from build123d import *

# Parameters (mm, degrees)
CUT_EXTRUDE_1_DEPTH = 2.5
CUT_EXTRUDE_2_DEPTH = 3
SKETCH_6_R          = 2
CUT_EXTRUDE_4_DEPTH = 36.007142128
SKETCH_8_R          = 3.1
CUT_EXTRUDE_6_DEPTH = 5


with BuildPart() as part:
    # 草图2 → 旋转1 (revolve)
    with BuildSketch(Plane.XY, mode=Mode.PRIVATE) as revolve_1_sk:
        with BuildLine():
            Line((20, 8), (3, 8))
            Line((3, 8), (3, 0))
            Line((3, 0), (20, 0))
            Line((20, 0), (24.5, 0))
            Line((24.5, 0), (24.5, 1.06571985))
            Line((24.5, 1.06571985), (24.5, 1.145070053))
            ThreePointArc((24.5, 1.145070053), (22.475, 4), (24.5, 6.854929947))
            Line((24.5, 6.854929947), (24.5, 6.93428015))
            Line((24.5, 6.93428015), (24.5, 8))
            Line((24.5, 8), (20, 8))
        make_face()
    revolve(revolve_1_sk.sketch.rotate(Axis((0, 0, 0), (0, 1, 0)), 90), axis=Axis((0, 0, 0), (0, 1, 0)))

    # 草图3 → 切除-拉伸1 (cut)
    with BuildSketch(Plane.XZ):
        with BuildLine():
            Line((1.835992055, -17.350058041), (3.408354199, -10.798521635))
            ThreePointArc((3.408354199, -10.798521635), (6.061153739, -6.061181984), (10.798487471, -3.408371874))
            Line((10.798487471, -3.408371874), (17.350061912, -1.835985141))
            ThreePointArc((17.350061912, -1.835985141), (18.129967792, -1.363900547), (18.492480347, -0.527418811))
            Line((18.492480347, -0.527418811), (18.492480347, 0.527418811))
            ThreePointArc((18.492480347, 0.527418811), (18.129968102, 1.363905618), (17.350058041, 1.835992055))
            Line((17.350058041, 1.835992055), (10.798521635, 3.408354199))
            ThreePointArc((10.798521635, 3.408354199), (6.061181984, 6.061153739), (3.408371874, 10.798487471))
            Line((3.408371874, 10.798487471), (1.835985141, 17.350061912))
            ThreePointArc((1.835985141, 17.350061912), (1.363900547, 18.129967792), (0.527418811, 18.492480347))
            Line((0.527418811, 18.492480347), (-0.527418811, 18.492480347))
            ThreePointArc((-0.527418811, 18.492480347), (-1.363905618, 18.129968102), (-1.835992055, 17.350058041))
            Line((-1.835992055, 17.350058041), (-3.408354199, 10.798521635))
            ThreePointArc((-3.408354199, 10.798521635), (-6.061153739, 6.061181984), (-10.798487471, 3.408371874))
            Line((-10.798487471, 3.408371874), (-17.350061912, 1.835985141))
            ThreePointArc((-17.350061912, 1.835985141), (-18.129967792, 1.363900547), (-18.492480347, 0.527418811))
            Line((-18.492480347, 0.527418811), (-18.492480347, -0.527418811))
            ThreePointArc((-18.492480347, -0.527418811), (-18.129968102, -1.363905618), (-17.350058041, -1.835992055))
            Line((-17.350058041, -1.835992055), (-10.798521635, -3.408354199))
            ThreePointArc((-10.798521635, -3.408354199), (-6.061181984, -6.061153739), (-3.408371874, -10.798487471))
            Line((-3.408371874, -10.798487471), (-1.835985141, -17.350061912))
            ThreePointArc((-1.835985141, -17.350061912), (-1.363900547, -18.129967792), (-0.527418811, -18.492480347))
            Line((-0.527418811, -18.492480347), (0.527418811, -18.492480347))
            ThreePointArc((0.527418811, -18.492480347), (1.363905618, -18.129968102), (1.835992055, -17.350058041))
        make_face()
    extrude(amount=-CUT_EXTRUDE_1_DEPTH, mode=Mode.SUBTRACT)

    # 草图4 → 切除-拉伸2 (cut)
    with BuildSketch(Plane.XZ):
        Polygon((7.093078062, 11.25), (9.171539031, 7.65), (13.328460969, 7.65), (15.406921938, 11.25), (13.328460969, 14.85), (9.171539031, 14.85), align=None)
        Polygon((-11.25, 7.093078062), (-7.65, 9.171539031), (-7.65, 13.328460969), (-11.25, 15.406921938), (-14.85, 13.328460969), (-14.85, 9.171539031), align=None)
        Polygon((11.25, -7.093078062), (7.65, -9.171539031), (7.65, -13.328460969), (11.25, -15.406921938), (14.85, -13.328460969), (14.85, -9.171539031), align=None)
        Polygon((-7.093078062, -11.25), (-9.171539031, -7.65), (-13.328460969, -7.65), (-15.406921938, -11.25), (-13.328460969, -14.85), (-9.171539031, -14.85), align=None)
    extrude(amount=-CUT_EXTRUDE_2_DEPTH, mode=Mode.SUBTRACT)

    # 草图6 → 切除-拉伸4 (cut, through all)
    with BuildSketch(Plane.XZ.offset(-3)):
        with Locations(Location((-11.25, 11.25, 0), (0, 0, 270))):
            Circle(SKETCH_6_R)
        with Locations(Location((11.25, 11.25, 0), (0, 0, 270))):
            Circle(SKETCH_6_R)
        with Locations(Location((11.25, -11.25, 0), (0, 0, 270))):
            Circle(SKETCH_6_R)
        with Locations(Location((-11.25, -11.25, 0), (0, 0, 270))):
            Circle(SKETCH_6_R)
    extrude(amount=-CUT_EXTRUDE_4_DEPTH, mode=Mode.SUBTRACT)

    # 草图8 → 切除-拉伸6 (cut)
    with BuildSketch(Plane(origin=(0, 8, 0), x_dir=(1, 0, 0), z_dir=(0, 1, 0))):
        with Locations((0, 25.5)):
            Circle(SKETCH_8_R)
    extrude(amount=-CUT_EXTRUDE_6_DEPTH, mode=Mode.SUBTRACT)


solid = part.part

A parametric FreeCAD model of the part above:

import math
import FreeCAD as App
import Part
import Sketcher
Q = App.Units.Quantity


def add_polygon(sketch, points):
    """Adds a closed chain of lines whose ends are joined by coincident constraints."""
    first, n = sketch.GeometryCount, len(points)
    for a, b in zip(points, points[1:] + points[:1]):
        sketch.addGeometry(Part.LineSegment(App.Vector(*a, 0), App.Vector(*b, 0)), False)
    for i in range(n):
        sketch.addConstraint(Sketcher.Constraint("Coincident", first + i, 2, first + (i + 1) % n, 1))

doc = App.newDocument("Part")
body = doc.addObject("PartDesign::Body", "Body")

sketch1 = doc.addObject("Sketcher::SketchObject", "Sketch")
body.addObject(sketch1)
sketch1.AttachmentSupport = (doc.XY_Plane, [""])
sketch1.MapMode = "FlatFace"
sketch1.addGeometry([
    Part.LineSegment(App.Vector(3, 8, 0), App.Vector(3, 0, 0)),
    Part.LineSegment(App.Vector(3, 0, 0), App.Vector(24.5, 0, 0)),
    Part.LineSegment(App.Vector(24.5, 0, 0), App.Vector(24.5, 1.14507, 0)),
    Part.ArcOfCircle(Part.Circle(App.Vector(25.5, 4, 0), App.Vector(0, 0, 1), 3.025), math.radians(109.303893), math.radians(250.696107)),
    Part.LineSegment(App.Vector(24.5, 6.85493, 0), App.Vector(24.5, 8, 0)),
    Part.LineSegment(App.Vector(24.5, 8, 0), App.Vector(3, 8, 0)),
], False)
sketch1.addConstraint([
    Sketcher.Constraint("Coincident", 0, 2, 1, 1),
    Sketcher.Constraint("Coincident", 1, 2, 2, 1),
    Sketcher.Constraint("Coincident", 2, 2, 3, 2),
    Sketcher.Constraint("Coincident", 3, 1, 4, 1),
    Sketcher.Constraint("Coincident", 4, 2, 5, 1),
    Sketcher.Constraint("Coincident", 5, 2, 0, 1),
    Sketcher.Constraint("Vertical", 0),
    Sketcher.Constraint("Horizontal", 1),
    Sketcher.Constraint("Vertical", 2),
    Sketcher.Constraint("Vertical", 4),
    Sketcher.Constraint("Horizontal", 5),
    Sketcher.Constraint("PointOnObject", 0, 2, -1),
    Sketcher.Constraint("Vertical", 2, 2, 3, 1),
    Sketcher.Constraint("Equal", 2, 4),
    Sketcher.Constraint("DistanceY", 0, 2, 0, 1, 8.0),
    Sketcher.Constraint("DistanceX", 1, 1, 1, 2, 21.5),
    Sketcher.Constraint("DistanceX", -1, 1, 0, 2, 3.0),
    Sketcher.Constraint("Radius", 3, 3.025),
    Sketcher.Constraint("DistanceX", 1, 2, 3, 3, 1.0),
])
revolution = doc.addObject("PartDesign::Revolution", "Revolution")
body.addObject(revolution)
revolution.Profile = sketch1
revolution.ReferenceAxis = (sketch1, ["V_Axis"])
revolution.Angle = 360

sketch2 = doc.addObject("Sketcher::SketchObject", "Sketch001")
body.addObject(sketch2)
sketch2.AttachmentSupport = (doc.XZ_Plane, [""])
sketch2.MapMode = "FlatFace"
sketch2.addGeometry([
    Part.LineSegment(App.Vector(1.835992, -17.350058, 0), App.Vector(3.408354, -10.798522, 0)),
    Part.ArcOfCircle(Part.Circle(App.Vector(13.132229, -13.132242, 0), App.Vector(0, 0, 1), 10), math.radians(103.495807), math.radians(166.504321)),
    Part.LineSegment(App.Vector(10.798487, -3.408372, 0), App.Vector(17.350062, -1.835985, 0)),
    Part.ArcOfCircle(Part.Circle(App.Vector(17.000001, -0.377405, 0), App.Vector(0, 0, 1), 1.5), math.radians(-76.504193), math.radians(-5.739715)),
    Part.LineSegment(App.Vector(18.49248, -0.527419, 0), App.Vector(18.49248, 0.527419, 0)),
    Part.ArcOfCircle(Part.Circle(App.Vector(17, 0.377411, 0), App.Vector(0, 0, 1), 1.5), math.radians(5.739479), math.radians(76.504321)),
    Part.LineSegment(App.Vector(17.350058, 1.835992, 0), App.Vector(10.798522, 3.408354, 0)),
    Part.ArcOfCircle(Part.Circle(App.Vector(13.132242, 13.132229, 0), App.Vector(0, 0, 1), 10), math.radians(-166.504193), math.radians(-103.495679)),
    Part.LineSegment(App.Vector(3.408372, 10.798487, 0), App.Vector(1.835985, 17.350062, 0)),
    Part.ArcOfCircle(Part.Circle(App.Vector(0.377405, 17.000001, 0), App.Vector(0, 0, 1), 1.5), math.radians(13.495807), math.radians(84.260285)),
    Part.LineSegment(App.Vector(0.527419, 18.49248, 0), App.Vector(-0.527419, 18.49248, 0)),
    Part.ArcOfCircle(Part.Circle(App.Vector(-0.377411, 17, 0), App.Vector(0, 0, 1), 1.5), math.radians(95.739479), math.radians(166.504321)),
    Part.LineSegment(App.Vector(-1.835992, 17.350058, 0), App.Vector(-3.408354, 10.798522, 0)),
    Part.ArcOfCircle(Part.Circle(App.Vector(-13.132229, 13.132242, 0), App.Vector(0, 0, 1), 10), math.radians(-76.504193), math.radians(-13.495679)),
    Part.LineSegment(App.Vector(-10.798487, 3.408372, 0), App.Vector(-17.350062, 1.835985, 0)),
    Part.ArcOfCircle(Part.Circle(App.Vector(-17.000001, 0.377405, 0), App.Vector(0, 0, 1), 1.5), math.radians(103.495807), math.radians(174.260285)),
    Part.LineSegment(App.Vector(-18.49248, 0.527419, 0), App.Vector(-18.49248, -0.527419, 0)),
    Part.ArcOfCircle(Part.Circle(App.Vector(-17, -0.377411, 0), App.Vector(0, 0, 1), 1.5), math.radians(-174.260521), math.radians(-103.495679)),
    Part.LineSegment(App.Vector(-17.350058, -1.835992, 0), App.Vector(-10.798522, -3.408354, 0)),
    Part.ArcOfCircle(Part.Circle(App.Vector(-13.132242, -13.132229, 0), App.Vector(0, 0, 1), 10), math.radians(13.495807), math.radians(76.504321)),
    Part.LineSegment(App.Vector(-3.408372, -10.798487, 0), App.Vector(-1.835985, -17.350062, 0)),
    Part.ArcOfCircle(Part.Circle(App.Vector(-0.377405, -17.000001, 0), App.Vector(0, 0, 1), 1.5), math.radians(-166.504193), math.radians(-95.739715)),
    Part.LineSegment(App.Vector(-0.527419, -18.49248, 0), App.Vector(0.527419, -18.49248, 0)),
    Part.ArcOfCircle(Part.Circle(App.Vector(0.377411, -17, 0), App.Vector(0, 0, 1), 1.5), math.radians(-84.260521), math.radians(-13.495679)),
], False)
sketch2.addConstraint([
    Sketcher.Constraint("Tangent", 0, 2, 1, 2),
    Sketcher.Constraint("Tangent", 1, 1, 2, 1),
    Sketcher.Constraint("Tangent", 2, 2, 3, 1),
    Sketcher.Constraint("Coincident", 3, 2, 4, 1),
    Sketcher.Constraint("Coincident", 4, 2, 5, 1),
    Sketcher.Constraint("Tangent", 5, 2, 6, 1),
    Sketcher.Constraint("Tangent", 6, 2, 7, 2),
    Sketcher.Constraint("Tangent", 7, 1, 8, 1),
    Sketcher.Constraint("Tangent", 8, 2, 9, 1),
    Sketcher.Constraint("Coincident", 9, 2, 10, 1),
    Sketcher.Constraint("Coincident", 10, 2, 11, 1),
    Sketcher.Constraint("Tangent", 11, 2, 12, 1),
    Sketcher.Constraint("Tangent", 12, 2, 13, 2),
    Sketcher.Constraint("Tangent", 13, 1, 14, 1),
    Sketcher.Constraint("Tangent", 14, 2, 15, 1),
    Sketcher.Constraint("Coincident", 15, 2, 16, 1),
    Sketcher.Constraint("Coincident", 16, 2, 17, 1),
    Sketcher.Constraint("Tangent", 17, 2, 18, 1),
    Sketcher.Constraint("Tangent", 18, 2, 19, 2),
    Sketcher.Constraint("Tangent", 19, 1, 20, 1),
    Sketcher.Constraint("Tangent", 20, 2, 21, 1),
    Sketcher.Constraint("Coincident", 21, 2, 22, 1),
    Sketcher.Constraint("Coincident", 22, 2, 23, 1),
    Sketcher.Constraint("Tangent", 23, 2, 0, 1),
    Sketcher.Constraint("Vertical", 4),
    Sketcher.Constraint("Horizontal", 10),
    Sketcher.Constraint("Vertical", 16),
    Sketcher.Constraint("Horizontal", 22),
    Sketcher.Constraint("Equal", 3, 5),
    Sketcher.Constraint("Equal", 1, 7),
    Sketcher.Constraint("Equal", 5, 9),
    Sketcher.Constraint("Equal", 9, 11),
    Sketcher.Constraint("Equal", 7, 13),
    Sketcher.Constraint("Equal", 11, 15),
    Sketcher.Constraint("Equal", 15, 17),
    Sketcher.Constraint("Equal", 13, 19),
    Sketcher.Constraint("Equal", 17, 21),
    Sketcher.Constraint("Equal", 21, 23),
    Sketcher.Constraint("Symmetric", 1, 3, 13, 3, -1, 1),
    Sketcher.Constraint("Symmetric", 3, 3, 15, 3, -1, 1),
    Sketcher.Constraint("Symmetric", 5, 3, 17, 3, -1, 1),
    Sketcher.Constraint("Symmetric", 7, 3, 19, 3, -1, 1),
    Sketcher.Constraint("Symmetric", 9, 3, 21, 3, -1, 1),
    Sketcher.Constraint("Symmetric", 11, 3, 23, 3, -1, 1),
    Sketcher.Constraint("Symmetric", 9, 3, 11, 3, -2),
    Sketcher.Constraint("Symmetric", 5, 3, 15, 3, -2),
    Sketcher.Constraint("Perpendicular", 0, 6),
    Sketcher.Constraint("Perpendicular", 2, 8),
    Sketcher.Constraint("Horizontal", 4, 2, 15, 2),
    Sketcher.Constraint("Vertical", 10, 2, 21, 2),
    Sketcher.Constraint("Equal", 22, 4),
    Sketcher.Constraint("Equal", 0, 6),
    Sketcher.Constraint("Radius", 1, 10.0),
    Sketcher.Constraint("Radius", 3, 1.5),
    Sketcher.Constraint("DistanceX", -1, 1, 3, 3, 17.000001),
    Sketcher.Constraint("DistanceY", -1, 1, 9, 3, 17.000001),
    Sketcher.Constraint("DistanceY", 1, 1, 7, 3, 16.540601),
    Sketcher.Constraint("Distance", 2, 6.73762),
    Sketcher.Constraint("DistanceX", 10, 2, 10, 1, 1.054838),
    Sketcher.Constraint("DistanceX", -1, 1, 1, 3, 13.132229),
])
pocket1 = doc.addObject("PartDesign::Pocket", "Pocket")
body.addObject(pocket1)
pocket1.Profile = sketch2
pocket1.Length = 2.5

sketch3 = doc.addObject("Sketcher::SketchObject", "Sketch002")
body.addObject(sketch3)
sketch3.AttachmentSupport = (doc.XZ_Plane, [""])
sketch3.MapMode = "FlatFace"
add_polygon(sketch3, [(7.093078, 11.25), (9.171539, 7.65), (13.328461, 7.65), (15.406922, 11.25), (13.328461, 14.85), (9.171539, 14.85)])
add_polygon(sketch3, [(-11.25, 7.093078), (-7.65, 9.171539), (-7.65, 13.328461), (-11.25, 15.406922), (-14.85, 13.328461), (-14.85, 9.171539)])
add_polygon(sketch3, [(11.25, -7.093078), (7.65, -9.171539), (7.65, -13.328461), (11.25, -15.406922), (14.85, -13.328461), (14.85, -9.171539)])
add_polygon(sketch3, [(-7.093078, -11.25), (-9.171539, -7.65), (-13.328461, -7.65), (-15.406922, -11.25), (-13.328461, -14.85), (-9.171539, -14.85)])
sketch3.addConstraint([
    Sketcher.Constraint("Horizontal", 1),
    Sketcher.Constraint("Horizontal", 4),
    Sketcher.Constraint("Vertical", 7),
    Sketcher.Constraint("Vertical", 10),
    Sketcher.Constraint("Vertical", 13),
    Sketcher.Constraint("Vertical", 16),
    Sketcher.Constraint("Horizontal", 19),
    Sketcher.Constraint("Horizontal", 22),
    Sketcher.Constraint("Symmetric", 6, 2, 12, 2, -1, 1),
    Sketcher.Constraint("Symmetric", 8, 2, 14, 2, -1, 1),
    Sketcher.Constraint("Symmetric", 9, 2, 15, 2, -1, 1),
    Sketcher.Constraint("Symmetric", 11, 2, 17, 2, -1, 1),
    Sketcher.Constraint("Symmetric", 0, 2, 18, 2, -1, 1),
    Sketcher.Constraint("Symmetric", 2, 2, 20, 2, -1, 1),
    Sketcher.Constraint("Symmetric", 3, 2, 21, 2, -1, 1),
    Sketcher.Constraint("Symmetric", 5, 2, 23, 2, -1, 1),
    Sketcher.Constraint("Parallel", 0, 3),
    Sketcher.Constraint("Parallel", 2, 5),
    Sketcher.Constraint("Perpendicular", 3, 6),
    Sketcher.Constraint("Perpendicular", 5, 8),
    Sketcher.Constraint("Parallel", 6, 9),
    Sketcher.Constraint("Parallel", 8, 11),
    Sketcher.Constraint("Parallel", 11, 14),
    Sketcher.Constraint("Parallel", 14, 17),
    Sketcher.Constraint("Perpendicular", 17, 20),
    Sketcher.Constraint("Parallel", 20, 23),
    Sketcher.Constraint("Horizontal", 2, 2, 5, 2),
    Sketcher.Constraint("Horizontal", 7, 2, 9, 2),
    Sketcher.Constraint("Horizontal", 6, 2, 10, 2),
    Sketcher.Constraint("Vertical", 1, 2, 3, 2),
    Sketcher.Constraint("Vertical", 0, 2, 4, 2),
    Sketcher.Constraint("Equal", 22, 7),
    Sketcher.Constraint("Equal", 5, 6),
    Sketcher.Constraint("Angle", 0, Q("-60 deg")),
    Sketcher.Constraint("DistanceY", 1, 2, 2, 2, 3.6),
    Sketcher.Constraint("DistanceX", 6, 2, 12, 2, 15.3),
    Sketcher.Constraint("DistanceY", -1, 1, 0, 2, 7.65),
    Sketcher.Constraint("DistanceX", 1, 1, 1, 2, 4.156922),
    Sketcher.Constraint("DistanceX", -1, 1, 0, 2, 9.171539),
    Sketcher.Constraint("DistanceY", -1, 1, 6, 2, 9.171539),
])
pocket2 = doc.addObject("PartDesign::Pocket", "Pocket001")
body.addObject(pocket2)
pocket2.Profile = sketch3
pocket2.Length = 3

sketch4 = doc.addObject("Sketcher::SketchObject", "Sketch003")
body.addObject(sketch4)
sketch4.AttachmentSupport = (doc.XZ_Plane, [""])
sketch4.MapMode = "FlatFace"
sketch4.AttachmentOffset = App.Placement(App.Vector(0, 0, -3), App.Rotation())
sketch4.addGeometry([
    Part.Circle(App.Vector(-11.25, 11.25, 0), App.Vector(0, 0, 1), 2),
    Part.Circle(App.Vector(11.25, 11.25, 0), App.Vector(0, 0, 1), 2),
    Part.Circle(App.Vector(11.25, -11.25, 0), App.Vector(0, 0, 1), 2),
    Part.Circle(App.Vector(-11.25, -11.25, 0), App.Vector(0, 0, 1), 2),
], False)
sketch4.addConstraint([
    Sketcher.Constraint("Equal", 0, 1),
    Sketcher.Constraint("Equal", 1, 2),
    Sketcher.Constraint("Equal", 2, 3),
    Sketcher.Constraint("Symmetric", 0, 3, 2, 3, -1, 1),
    Sketcher.Constraint("Symmetric", 1, 3, 3, 3, -1, 1),
    Sketcher.Constraint("Symmetric", 0, 3, 1, 3, -2),
    Sketcher.Constraint("Diameter", 0, 4.0),
    Sketcher.Constraint("DistanceX", 0, 3, 1, 3, 22.5),
    Sketcher.Constraint("DistanceY", 2, 3, 1, 3, 22.5),
])
pocket3 = doc.addObject("PartDesign::Pocket", "Pocket002")
body.addObject(pocket3)
pocket3.Profile = sketch4
pocket3.Type = "ThroughAll"

sketch5 = doc.addObject("Sketcher::SketchObject", "Sketch004")
body.addObject(sketch5)
sketch5.AttachmentSupport = (doc.XZ_Plane, [""])
sketch5.MapMode = "FlatFace"
sketch5.AttachmentOffset = App.Placement(App.Vector(0, 0, -8), App.Rotation())
sketch5.addGeometry(Part.Circle(App.Vector(0, -25.5, 0), App.Vector(0, 0, 1), 3.1), False)
sketch5.addConstraint([
    Sketcher.Constraint("PointOnObject", 0, 3, -2),
    Sketcher.Constraint("Diameter", 0, 6.2),
    Sketcher.Constraint("DistanceY", 0, 3, -1, 1, 25.5),
])
pocket4 = doc.addObject("PartDesign::Pocket", "Pocket003")
body.addObject(pocket4)
pocket4.Profile = sketch5
pocket4.Length = 5
pocket4.Reversed = True

doc.recompute()
